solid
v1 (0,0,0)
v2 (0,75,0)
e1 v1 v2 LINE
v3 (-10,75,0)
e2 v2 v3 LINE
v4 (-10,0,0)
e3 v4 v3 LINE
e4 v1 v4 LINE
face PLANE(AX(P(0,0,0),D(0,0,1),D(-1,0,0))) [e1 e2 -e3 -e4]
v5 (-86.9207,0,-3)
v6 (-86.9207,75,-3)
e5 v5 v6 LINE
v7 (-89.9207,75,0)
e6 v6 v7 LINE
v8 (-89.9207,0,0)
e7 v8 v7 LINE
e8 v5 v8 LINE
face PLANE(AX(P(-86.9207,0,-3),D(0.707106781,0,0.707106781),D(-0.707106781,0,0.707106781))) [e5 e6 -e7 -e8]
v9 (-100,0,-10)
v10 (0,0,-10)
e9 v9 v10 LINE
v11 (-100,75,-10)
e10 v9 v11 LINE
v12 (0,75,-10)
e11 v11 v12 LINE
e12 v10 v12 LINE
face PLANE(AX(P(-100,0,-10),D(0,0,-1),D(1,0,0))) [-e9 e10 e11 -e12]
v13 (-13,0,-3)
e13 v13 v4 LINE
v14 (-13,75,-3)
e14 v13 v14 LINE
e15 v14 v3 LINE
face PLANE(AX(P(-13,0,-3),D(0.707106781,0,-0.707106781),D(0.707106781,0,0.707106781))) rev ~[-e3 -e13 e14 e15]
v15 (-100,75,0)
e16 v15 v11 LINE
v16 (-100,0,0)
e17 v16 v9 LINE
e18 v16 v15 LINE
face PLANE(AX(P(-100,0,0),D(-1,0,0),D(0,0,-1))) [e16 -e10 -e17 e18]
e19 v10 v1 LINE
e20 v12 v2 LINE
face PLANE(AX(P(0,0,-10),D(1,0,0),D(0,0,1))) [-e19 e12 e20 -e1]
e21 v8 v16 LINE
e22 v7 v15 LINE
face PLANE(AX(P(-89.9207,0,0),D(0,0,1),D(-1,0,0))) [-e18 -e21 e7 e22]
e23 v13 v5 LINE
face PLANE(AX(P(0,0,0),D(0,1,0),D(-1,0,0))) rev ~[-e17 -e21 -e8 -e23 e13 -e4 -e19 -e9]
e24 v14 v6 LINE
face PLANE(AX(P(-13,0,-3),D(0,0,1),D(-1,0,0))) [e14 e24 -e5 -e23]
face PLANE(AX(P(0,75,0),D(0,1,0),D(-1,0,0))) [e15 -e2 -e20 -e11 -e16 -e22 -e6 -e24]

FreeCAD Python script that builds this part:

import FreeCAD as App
import Part
import Sketcher
from FreeCAD import Vector
Q = App.Units.Quantity


def add_polygon(sketch, points):
    """Adds a closed chain of lines whose ends are joined by coincident constraints."""
    first, n = sketch.GeometryCount, len(points)
    for a, b in zip(points, points[1:] + points[:1]):
        sketch.addGeometry(Part.LineSegment(App.Vector(*a, 0), App.Vector(*b, 0)), False)
    for i in range(n):
        sketch.addConstraint(Sketcher.Constraint("Coincident", first + i, 2, first + (i + 1) % n, 1))

doc = App.newDocument("Part")
body = doc.addObject("PartDesign::Body", "Body")

sketch1 = body.newObject("Sketcher::SketchObject", "Sketch")
sketch1.AttachmentSupport = (doc.getObject("XZ_Plane"), [""])
sketch1.MapMode = "FlatFace"
add_polygon(sketch1, [(-100, -10), (-100, 0), (-89.9207, 0), (-86.9207, -3), (-13, -3), (-10, 0), (0, 0), (0, -10)])
sketch1.addConstraint([
    Sketcher.Constraint("Vertical", 0),
    Sketcher.Constraint("Horizontal", 1),
    Sketcher.Constraint("Horizontal", 3),
    Sketcher.Constraint("Horizontal", 5),
    Sketcher.Constraint("Vertical", 6),
    Sketcher.Constraint("Horizontal", 7),
    Sketcher.Constraint("Coincident", 5, 2, -1, 1),
    Sketcher.Constraint("PointOnObject", 0, 2, -1),
    Sketcher.Constraint("Perpendicular", 2, 4),
    Sketcher.Constraint("Equal", 5, 0),
    Sketcher.Constraint("Equal", 2, 4),
    Sketcher.Constraint("DistanceX", 5, 1, 5, 2, Q("10 mm")),
    Sketcher.Constraint("DistanceX", 7, 2, 7, 1, Q("100 mm")),
    Sketcher.Constraint("DistanceY", 2, 2, -1, 1, Q("3 mm")),
    Sketcher.Constraint("DistanceX", 1, 1, 1, 2, Q("10.0793 mm")),
])
pad1 = body.newObject("PartDesign::Pad", "Pad")
pad1.Profile = sketch1
pad1.Length = 75
pad1.Reversed = True

doc.recompute()
